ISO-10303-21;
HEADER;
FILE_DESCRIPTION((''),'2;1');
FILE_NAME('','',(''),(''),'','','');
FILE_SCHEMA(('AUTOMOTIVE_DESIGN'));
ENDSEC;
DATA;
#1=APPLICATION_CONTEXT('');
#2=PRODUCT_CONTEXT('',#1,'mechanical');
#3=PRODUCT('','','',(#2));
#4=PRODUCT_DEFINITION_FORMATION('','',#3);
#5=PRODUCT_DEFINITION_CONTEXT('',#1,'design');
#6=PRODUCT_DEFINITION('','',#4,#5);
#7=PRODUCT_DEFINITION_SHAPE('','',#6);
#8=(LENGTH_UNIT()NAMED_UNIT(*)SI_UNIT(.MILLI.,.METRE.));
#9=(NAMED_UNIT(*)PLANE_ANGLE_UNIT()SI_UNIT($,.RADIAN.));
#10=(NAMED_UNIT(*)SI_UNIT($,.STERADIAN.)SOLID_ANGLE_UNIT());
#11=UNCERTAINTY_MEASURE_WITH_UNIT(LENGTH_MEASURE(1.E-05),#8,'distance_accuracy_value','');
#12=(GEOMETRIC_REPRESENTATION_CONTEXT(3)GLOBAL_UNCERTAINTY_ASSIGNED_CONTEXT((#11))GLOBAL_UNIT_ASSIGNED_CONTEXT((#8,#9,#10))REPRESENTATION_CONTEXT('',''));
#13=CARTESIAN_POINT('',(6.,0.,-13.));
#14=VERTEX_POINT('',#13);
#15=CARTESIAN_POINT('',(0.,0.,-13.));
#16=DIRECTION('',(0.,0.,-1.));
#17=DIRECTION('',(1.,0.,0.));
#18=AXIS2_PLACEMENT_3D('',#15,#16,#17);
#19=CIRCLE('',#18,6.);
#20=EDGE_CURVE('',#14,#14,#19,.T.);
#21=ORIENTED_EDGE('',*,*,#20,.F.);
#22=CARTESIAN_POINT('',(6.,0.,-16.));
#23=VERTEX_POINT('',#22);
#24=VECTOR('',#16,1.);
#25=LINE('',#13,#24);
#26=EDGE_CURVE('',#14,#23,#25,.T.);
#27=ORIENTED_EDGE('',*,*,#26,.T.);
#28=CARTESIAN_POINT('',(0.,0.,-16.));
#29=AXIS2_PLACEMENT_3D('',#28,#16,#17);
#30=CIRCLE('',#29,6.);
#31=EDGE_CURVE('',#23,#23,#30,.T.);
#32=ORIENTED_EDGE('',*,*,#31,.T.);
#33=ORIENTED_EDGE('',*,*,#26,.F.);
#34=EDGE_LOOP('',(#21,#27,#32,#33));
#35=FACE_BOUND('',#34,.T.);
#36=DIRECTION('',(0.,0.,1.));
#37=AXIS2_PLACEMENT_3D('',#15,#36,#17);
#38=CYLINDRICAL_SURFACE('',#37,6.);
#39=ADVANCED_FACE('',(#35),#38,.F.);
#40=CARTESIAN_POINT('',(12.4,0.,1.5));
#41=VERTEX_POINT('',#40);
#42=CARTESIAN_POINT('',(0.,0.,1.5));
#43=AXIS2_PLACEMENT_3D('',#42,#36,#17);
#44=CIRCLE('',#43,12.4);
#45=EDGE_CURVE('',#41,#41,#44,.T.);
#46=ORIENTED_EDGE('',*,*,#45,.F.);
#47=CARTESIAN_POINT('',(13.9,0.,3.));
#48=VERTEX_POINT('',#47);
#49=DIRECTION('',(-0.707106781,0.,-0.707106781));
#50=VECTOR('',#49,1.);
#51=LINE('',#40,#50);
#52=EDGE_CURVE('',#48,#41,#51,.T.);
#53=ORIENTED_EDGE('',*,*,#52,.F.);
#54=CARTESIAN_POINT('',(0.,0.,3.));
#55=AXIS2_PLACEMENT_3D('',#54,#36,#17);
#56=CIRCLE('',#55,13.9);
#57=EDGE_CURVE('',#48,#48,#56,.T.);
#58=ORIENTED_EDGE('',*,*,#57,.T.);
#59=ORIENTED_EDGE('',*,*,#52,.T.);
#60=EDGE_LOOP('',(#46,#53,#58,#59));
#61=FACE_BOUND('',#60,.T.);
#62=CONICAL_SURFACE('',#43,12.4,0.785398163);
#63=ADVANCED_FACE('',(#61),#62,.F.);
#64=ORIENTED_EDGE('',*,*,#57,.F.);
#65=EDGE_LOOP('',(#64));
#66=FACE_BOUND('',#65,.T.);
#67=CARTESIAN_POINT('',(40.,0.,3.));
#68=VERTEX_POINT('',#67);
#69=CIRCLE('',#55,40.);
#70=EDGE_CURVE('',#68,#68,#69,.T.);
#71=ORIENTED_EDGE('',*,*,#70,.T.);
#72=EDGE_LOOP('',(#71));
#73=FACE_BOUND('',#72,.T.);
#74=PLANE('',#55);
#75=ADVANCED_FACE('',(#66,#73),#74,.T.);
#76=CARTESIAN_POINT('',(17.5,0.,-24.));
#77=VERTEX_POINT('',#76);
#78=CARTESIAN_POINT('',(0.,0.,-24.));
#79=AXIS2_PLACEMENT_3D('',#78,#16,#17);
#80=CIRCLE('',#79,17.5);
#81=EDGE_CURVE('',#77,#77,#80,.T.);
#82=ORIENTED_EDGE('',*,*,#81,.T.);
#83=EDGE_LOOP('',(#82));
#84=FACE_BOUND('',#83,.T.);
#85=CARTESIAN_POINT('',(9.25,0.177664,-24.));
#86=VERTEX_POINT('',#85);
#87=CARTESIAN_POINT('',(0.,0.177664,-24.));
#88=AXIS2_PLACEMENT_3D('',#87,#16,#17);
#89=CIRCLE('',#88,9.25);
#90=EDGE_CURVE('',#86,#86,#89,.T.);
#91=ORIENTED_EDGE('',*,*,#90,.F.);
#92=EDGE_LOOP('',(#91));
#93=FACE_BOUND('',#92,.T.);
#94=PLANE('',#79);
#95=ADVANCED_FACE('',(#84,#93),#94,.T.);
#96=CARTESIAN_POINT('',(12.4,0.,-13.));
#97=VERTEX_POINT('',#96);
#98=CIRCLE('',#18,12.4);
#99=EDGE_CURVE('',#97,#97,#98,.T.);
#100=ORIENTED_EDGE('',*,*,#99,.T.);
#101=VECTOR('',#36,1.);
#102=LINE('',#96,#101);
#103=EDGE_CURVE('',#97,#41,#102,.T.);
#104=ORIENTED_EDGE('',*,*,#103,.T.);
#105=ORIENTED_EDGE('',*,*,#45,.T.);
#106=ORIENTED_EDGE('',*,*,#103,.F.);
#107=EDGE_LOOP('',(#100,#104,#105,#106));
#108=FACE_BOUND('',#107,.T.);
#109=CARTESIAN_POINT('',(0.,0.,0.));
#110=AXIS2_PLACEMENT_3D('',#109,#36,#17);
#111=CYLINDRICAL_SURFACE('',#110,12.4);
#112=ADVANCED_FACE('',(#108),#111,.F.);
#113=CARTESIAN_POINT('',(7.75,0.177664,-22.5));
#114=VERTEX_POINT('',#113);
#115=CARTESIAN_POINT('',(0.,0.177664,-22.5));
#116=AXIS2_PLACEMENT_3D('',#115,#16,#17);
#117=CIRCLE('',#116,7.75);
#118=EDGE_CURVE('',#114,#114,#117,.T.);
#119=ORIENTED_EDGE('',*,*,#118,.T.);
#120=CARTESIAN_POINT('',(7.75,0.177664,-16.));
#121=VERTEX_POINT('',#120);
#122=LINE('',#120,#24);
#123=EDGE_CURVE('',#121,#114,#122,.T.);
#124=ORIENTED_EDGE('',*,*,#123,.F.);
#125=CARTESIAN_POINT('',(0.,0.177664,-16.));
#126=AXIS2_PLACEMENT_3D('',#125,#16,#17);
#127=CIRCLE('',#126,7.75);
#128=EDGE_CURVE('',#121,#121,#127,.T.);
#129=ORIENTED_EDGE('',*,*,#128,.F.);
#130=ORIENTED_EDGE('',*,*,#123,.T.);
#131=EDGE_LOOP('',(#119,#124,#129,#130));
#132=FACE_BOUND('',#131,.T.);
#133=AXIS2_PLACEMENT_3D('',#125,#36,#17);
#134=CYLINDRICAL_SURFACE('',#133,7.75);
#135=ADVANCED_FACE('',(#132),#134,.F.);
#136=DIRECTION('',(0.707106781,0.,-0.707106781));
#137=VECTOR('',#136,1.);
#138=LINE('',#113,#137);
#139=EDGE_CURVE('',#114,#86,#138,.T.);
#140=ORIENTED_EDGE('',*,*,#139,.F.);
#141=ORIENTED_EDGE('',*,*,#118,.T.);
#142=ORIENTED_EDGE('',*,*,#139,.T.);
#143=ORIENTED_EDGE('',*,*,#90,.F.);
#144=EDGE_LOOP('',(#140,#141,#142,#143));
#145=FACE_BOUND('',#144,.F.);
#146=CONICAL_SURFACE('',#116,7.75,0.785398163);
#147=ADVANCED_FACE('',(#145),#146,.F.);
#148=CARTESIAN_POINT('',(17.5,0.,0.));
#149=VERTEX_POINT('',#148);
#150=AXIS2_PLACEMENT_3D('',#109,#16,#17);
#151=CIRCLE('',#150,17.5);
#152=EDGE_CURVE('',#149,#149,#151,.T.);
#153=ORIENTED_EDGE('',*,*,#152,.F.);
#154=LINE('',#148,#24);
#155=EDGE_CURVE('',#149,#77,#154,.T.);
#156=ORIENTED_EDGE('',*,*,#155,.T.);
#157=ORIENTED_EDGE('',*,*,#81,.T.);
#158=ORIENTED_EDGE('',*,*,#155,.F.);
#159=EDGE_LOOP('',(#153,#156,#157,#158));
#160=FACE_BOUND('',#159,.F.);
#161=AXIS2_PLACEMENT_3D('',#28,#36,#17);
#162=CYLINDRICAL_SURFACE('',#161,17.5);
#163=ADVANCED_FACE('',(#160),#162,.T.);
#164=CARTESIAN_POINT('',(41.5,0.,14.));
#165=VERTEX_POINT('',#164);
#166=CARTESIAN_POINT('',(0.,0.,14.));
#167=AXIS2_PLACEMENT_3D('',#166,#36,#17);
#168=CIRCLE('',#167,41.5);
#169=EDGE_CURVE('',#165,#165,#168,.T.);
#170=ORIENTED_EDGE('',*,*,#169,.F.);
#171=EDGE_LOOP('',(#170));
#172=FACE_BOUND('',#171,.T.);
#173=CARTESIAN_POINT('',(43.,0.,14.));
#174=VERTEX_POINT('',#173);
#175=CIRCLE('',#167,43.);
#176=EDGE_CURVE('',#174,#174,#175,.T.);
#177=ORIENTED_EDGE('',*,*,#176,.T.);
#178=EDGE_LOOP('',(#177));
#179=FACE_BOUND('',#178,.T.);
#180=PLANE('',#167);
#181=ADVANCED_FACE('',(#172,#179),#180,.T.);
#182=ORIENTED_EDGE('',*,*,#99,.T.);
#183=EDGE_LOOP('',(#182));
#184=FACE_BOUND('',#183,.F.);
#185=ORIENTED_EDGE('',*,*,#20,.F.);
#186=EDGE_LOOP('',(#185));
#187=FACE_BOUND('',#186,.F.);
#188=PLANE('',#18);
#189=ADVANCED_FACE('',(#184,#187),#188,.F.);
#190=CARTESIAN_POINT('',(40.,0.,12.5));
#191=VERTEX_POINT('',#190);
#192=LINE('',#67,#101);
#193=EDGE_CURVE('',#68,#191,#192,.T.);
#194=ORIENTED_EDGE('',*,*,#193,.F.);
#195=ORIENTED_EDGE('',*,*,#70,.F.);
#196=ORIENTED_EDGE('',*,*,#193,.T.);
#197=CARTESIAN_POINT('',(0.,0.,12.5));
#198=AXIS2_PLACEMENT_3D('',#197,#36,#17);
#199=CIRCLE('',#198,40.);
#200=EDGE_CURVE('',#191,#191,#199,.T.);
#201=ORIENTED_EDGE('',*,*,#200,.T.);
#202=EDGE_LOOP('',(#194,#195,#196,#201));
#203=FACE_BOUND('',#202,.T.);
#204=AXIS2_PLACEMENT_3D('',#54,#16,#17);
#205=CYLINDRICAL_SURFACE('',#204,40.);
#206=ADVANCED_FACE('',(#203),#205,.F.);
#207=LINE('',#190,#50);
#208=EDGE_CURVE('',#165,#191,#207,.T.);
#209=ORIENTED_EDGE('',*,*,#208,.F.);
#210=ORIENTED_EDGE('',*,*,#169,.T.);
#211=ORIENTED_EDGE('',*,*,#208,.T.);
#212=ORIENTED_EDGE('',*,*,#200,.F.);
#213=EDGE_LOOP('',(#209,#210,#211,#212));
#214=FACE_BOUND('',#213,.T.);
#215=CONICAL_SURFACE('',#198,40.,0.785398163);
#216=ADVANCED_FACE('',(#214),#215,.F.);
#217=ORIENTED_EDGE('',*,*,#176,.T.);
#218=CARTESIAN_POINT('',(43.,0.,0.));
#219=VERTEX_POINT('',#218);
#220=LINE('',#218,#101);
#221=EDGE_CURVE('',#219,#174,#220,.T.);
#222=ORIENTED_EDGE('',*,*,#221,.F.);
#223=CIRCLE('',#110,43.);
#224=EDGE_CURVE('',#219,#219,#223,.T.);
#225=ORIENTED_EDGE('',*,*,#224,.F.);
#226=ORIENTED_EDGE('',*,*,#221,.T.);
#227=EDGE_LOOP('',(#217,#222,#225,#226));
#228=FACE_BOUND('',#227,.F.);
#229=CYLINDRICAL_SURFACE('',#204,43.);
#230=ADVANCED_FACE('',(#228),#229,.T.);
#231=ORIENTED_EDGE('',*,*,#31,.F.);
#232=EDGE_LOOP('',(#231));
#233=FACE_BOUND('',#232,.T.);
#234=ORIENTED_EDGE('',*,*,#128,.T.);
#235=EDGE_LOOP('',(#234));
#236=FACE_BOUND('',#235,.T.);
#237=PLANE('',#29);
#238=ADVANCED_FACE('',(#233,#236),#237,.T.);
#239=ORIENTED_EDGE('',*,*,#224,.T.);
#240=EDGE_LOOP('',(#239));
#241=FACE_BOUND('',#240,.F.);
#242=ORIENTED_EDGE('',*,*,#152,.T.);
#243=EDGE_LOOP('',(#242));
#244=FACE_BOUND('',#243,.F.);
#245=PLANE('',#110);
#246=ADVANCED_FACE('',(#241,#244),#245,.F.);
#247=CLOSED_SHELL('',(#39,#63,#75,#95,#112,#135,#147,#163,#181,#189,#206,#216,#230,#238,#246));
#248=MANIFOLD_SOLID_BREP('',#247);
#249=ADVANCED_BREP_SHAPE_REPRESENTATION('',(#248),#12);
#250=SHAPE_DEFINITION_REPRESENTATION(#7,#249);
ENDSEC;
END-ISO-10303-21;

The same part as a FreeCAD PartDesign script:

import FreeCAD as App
import Part
import Sketcher
from FreeCAD import Vector


def edges_at(feature, points):
    """Names of the edges that pass closest to the given points."""
    edges = feature.Shape.Edges
    near = lambda p: min(range(len(edges)), key=lambda i: edges[i].distToShape(Part.Vertex(*p))[0])
    return sorted({f"Edge{near(p) + 1}" for p in points})

doc = App.newDocument("Part")
params = doc.addObject("Spreadsheet::Sheet", "Params")
for row, (alias, value) in enumerate([
    ("sketch1_diameter", "86 mm"),
    ("pad1_length", "3 mm"),
    ("sketch2_diameter", "86 mm"),
    ("sketch2_diameter2", "80 mm"),
    ("pad2_length", "11 mm"),
    ("sketch3_diameter", "24.8 mm"),
    ("pocket1_length", "5 mm"),
    ("sketch4_diameter", "35 mm"),
    ("sketch4_diameter2", "24.8 mm"),
    ("pad3_length", "13 mm"),
    ("sketch5_diameter", "35 mm"),
    ("sketch5_diameter2", "12 mm"),
    ("pad4_length", "3 mm"),
    ("sketch6_diameter", "35 mm"),
    ("sketch6_diameter2", "15.5 mm"),
    ("pad5_length", "8 mm"),
    ("chamfer_size", "1.5 mm"),
    ("chamfer2_size", "1.5 mm"),
    ("chamfer3_size", "1.5 mm"),
], start=1):
    params.set(f"A{row}", alias)
    params.set(f"B{row}", "=" + value)
    params.setAlias(f"B{row}", alias)

body = doc.addObject("PartDesign::Body", "Body")

# Sketch on XY plane
sketch1 = doc.addObject("Sketcher::SketchObject", "Sketch")
body.addObject(sketch1)
sketch1.AttachmentSupport = (doc.XY_Plane, [""])
sketch1.MapMode = "FlatFace"
sketch1.addGeometry(Part.Circle(Vector(0, 0, 0), Vector(0, 0, 1), 43), False)
sketch1.addConstraint(Sketcher.Constraint("Coincident", 0, 3, -1, 1))
sketch1.addConstraint(Sketcher.Constraint("Diameter", 0, 86.0))
sketch1.setExpression("Constraints[1]", "Params.sketch1_diameter")
pad1 = doc.addObject("PartDesign::Pad", "Pad")
body.addObject(pad1)
pad1.Profile = sketch1
pad1.setExpression("Length", "Params.pad1_length")

# Sketch on XY plane
sketch2 = doc.addObject("Sketcher::SketchObject", "Sketch001")
body.addObject(sketch2)
sketch2.AttachmentSupport = (doc.XY_Plane, [""])
sketch2.MapMode = "FlatFace"
sketch2.AttachmentOffset = App.Placement(Vector(0, 0, 3), App.Rotation())
sketch2.addGeometry(Part.Circle(Vector(0, 0, 0), Vector(0, 0, 1), 43), False)
sketch2.addGeometry(Part.Circle(Vector(0, 0, 0), Vector(0, 0, 1), 40), False)
sketch2.addConstraint(Sketcher.Constraint("Coincident", 0, 3, -1, 1))
sketch2.addConstraint(Sketcher.Constraint("Coincident", 1, 3, -1, 1))
sketch2.addConstraint(Sketcher.Constraint("Diameter", 0, 86.0))
sketch2.addConstraint(Sketcher.Constraint("Diameter", 1, 80.0))
sketch2.setExpression("Constraints[2]", "Params.sketch2_diameter")
sketch2.setExpression("Constraints[3]", "Params.sketch2_diameter2")
pad2 = doc.addObject("PartDesign::Pad", "Pad001")
body.addObject(pad2)
pad2.Profile = sketch2
pad2.setExpression("Length", "Params.pad2_length")

# Sketch on XY plane
sketch3 = doc.addObject("Sketcher::SketchObject", "Sketch002")
body.addObject(sketch3)
sketch3.AttachmentSupport = (doc.XY_Plane, [""])
sketch3.MapMode = "FlatFace"
sketch3.AttachmentOffset = App.Placement(Vector(0, 0, 3), App.Rotation())
sketch3.addGeometry(Part.Circle(Vector(0, 0, 0), Vector(0, 0, 1), 12.4), False)
sketch3.addConstraint(Sketcher.Constraint("Coincident", 0, 3, -1, 1))
sketch3.addConstraint(Sketcher.Constraint("Diameter", 0, 24.8))
sketch3.setExpression("Constraints[1]", "Params.sketch3_diameter")
pocket1 = doc.addObject("PartDesign::Pocket", "Pocket")
body.addObject(pocket1)
pocket1.Profile = sketch3
pocket1.setExpression("Length", "Params.pocket1_length")

# Sketch on XY plane
sketch4 = doc.addObject("Sketcher::SketchObject", "Sketch003")
body.addObject(sketch4)
sketch4.AttachmentSupport = (doc.XY_Plane, [""])
sketch4.MapMode = "FlatFace"
sketch4.addGeometry(Part.Circle(Vector(0, 0, 0), Vector(0, 0, 1), 17.5), False)
sketch4.addGeometry(Part.Circle(Vector(0, 0, 0), Vector(0, 0, 1), 12.4), False)
sketch4.addConstraint(Sketcher.Constraint("Coincident", 0, 3, -1, 1))
sketch4.addConstraint(Sketcher.Constraint("Coincident", 1, 3, -1, 1))
sketch4.addConstraint(Sketcher.Constraint("Diameter", 0, 35.0))
sketch4.addConstraint(Sketcher.Constraint("Diameter", 1, 24.8))
sketch4.setExpression("Constraints[2]", "Params.sketch4_diameter")
sketch4.setExpression("Constraints[3]", "Params.sketch4_diameter2")
pad3 = doc.addObject("PartDesign::Pad", "Pad002")
body.addObject(pad3)
pad3.Profile = sketch4
pad3.setExpression("Length", "Params.pad3_length")
pad3.Reversed = True

# Sketch on XY plane
sketch5 = doc.addObject("Sketcher::SketchObject", "Sketch004")
body.addObject(sketch5)
sketch5.AttachmentSupport = (doc.XY_Plane, [""])
sketch5.MapMode = "FlatFace"
sketch5.AttachmentOffset = App.Placement(Vector(0, 0, -13), App.Rotation())
sketch5.addGeometry(Part.Circle(Vector(0, 0, 0), Vector(0, 0, 1), 17.5), False)
sketch5.addGeometry(Part.Circle(Vector(0, 0, 0), Vector(0, 0, 1), 6), False)
sketch5.addConstraint(Sketcher.Constraint("Coincident", 0, 3, -1, 1))
sketch5.addConstraint(Sketcher.Constraint("Coincident", 1, 3, -1, 1))
sketch5.addConstraint(Sketcher.Constraint("Diameter", 0, 35.0))
sketch5.addConstraint(Sketcher.Constraint("Diameter", 1, 12.0))
sketch5.setExpression("Constraints[2]", "Params.sketch5_diameter")
sketch5.setExpression("Constraints[3]", "Params.sketch5_diameter2")
pad4 = doc.addObject("PartDesign::Pad", "Pad003")
body.addObject(pad4)
pad4.Profile = sketch5
pad4.setExpression("Length", "Params.pad4_length")
pad4.Reversed = True

# Sketch on XY plane
sketch6 = doc.addObject("Sketcher::SketchObject", "Sketch005")
body.addObject(sketch6)
sketch6.AttachmentSupport = (doc.XY_Plane, [""])
sketch6.MapMode = "FlatFace"
sketch6.AttachmentOffset = App.Placement(Vector(0, 0, -16), App.Rotation())
sketch6.addGeometry(Part.Circle(Vector(0, 0, 0), Vector(0, 0, 1), 17.5), False)
sketch6.addGeometry(Part.Circle(Vector(0, 0.177664, 0), Vector(0, 0, 1), 7.75), False)
sketch6.addConstraint(Sketcher.Constraint("Coincident", 0, 3, -1, 1))
sketch6.addConstraint(Sketcher.Constraint("PointOnObject", 1, 3, -2))
sketch6.addConstraint(Sketcher.Constraint("Diameter", 0, 35.0))
sketch6.addConstraint(Sketcher.Constraint("Diameter", 1, 15.5))
sketch6.addConstraint(Sketcher.Constraint("DistanceY", -1, 1, 1, 3, 0.177664))
sketch6.setExpression("Constraints[2]", "Params.sketch6_diameter")
sketch6.setExpression("Constraints[3]", "Params.sketch6_diameter2")
pad5 = doc.addObject("PartDesign::Pad", "Pad004")
body.addObject(pad5)
pad5.Profile = sketch6
pad5.setExpression("Length", "Params.pad5_length")
pad5.Reversed = True
doc.recompute()

chamfer = doc.addObject("PartDesign::Chamfer", "Chamfer")
body.addObject(chamfer)
chamfer.Base = (pad5, edges_at(pad5, [(-7.75, 0.178, -24)]))
chamfer.setExpression("Size", "Params.chamfer_size")
doc.recompute()

chamfer2 = doc.addObject("PartDesign::Chamfer", "Chamfer001")
body.addObject(chamfer2)
chamfer2.Base = (chamfer, edges_at(chamfer, [(-40, 0, 14)]))
chamfer2.setExpression("Size", "Params.chamfer2_size")
doc.recompute()

chamfer3 = doc.addObject("PartDesign::Chamfer", "Chamfer002")
body.addObject(chamfer3)
chamfer3.Base = (chamfer2, edges_at(chamfer2, [(-12.4, 0, 3)]))
chamfer3.setExpression("Size", "Params.chamfer3_size")

doc.recompute()
